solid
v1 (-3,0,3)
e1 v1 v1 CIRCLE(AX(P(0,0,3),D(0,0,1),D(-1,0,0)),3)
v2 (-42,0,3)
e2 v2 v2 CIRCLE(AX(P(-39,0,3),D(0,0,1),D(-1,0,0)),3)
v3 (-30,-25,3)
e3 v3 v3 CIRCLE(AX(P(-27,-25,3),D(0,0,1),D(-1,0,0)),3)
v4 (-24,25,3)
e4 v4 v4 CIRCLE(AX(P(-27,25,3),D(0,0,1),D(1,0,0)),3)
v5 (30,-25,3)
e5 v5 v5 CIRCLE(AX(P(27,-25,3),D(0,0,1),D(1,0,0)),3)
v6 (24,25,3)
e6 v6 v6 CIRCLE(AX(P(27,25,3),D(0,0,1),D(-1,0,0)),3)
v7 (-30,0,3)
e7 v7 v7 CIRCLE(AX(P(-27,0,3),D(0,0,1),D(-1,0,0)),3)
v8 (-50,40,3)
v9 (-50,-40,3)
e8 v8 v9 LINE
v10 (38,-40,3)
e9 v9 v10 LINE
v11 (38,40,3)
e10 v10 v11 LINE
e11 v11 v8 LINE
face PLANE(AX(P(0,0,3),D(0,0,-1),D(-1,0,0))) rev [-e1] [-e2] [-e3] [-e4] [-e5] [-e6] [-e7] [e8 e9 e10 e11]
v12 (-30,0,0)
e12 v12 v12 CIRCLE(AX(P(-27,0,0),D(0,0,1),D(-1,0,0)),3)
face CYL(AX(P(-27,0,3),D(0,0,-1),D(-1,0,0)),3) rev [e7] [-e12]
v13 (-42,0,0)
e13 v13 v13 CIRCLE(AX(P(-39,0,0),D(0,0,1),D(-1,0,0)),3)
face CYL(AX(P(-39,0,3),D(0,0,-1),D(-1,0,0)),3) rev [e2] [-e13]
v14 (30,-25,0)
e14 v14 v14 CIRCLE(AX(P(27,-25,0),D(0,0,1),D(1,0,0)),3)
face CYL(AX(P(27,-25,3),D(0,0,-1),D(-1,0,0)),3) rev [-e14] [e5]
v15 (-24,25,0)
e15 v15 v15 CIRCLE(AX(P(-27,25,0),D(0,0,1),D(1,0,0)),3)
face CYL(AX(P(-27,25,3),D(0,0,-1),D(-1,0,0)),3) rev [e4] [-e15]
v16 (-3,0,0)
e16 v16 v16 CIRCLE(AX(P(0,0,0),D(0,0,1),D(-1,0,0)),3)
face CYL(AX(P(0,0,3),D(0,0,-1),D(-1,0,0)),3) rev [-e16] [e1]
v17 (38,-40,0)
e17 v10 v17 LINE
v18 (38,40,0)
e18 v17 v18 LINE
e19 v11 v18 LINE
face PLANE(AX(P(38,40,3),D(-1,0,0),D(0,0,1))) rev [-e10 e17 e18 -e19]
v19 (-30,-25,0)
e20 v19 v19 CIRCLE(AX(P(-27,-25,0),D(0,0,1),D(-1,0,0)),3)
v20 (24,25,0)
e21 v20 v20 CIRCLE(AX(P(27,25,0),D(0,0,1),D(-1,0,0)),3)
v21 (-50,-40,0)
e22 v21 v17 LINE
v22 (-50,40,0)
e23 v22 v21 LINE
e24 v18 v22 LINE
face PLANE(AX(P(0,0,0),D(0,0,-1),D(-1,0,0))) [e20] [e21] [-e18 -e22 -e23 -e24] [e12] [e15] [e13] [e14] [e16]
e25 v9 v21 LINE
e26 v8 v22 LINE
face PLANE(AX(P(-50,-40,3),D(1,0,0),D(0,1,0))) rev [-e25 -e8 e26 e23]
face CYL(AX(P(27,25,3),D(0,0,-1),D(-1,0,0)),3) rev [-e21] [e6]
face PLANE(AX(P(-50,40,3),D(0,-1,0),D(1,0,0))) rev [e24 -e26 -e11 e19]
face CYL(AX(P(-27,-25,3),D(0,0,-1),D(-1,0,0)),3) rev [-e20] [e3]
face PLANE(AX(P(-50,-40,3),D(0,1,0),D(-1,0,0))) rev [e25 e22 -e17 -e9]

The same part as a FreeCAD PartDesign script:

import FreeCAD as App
import Part
import Sketcher

V = App.Vector


def add_polygon(sketch, points):
    """Adds a closed chain of lines whose ends are joined by coincident constraints."""
    first, n = sketch.GeometryCount, len(points)
    for a, b in zip(points, points[1:] + points[:1]):
        sketch.addGeometry(Part.LineSegment(App.Vector(*a, 0), App.Vector(*b, 0)), False)
    for i in range(n):
        sketch.addConstraint(Sketcher.Constraint("Coincident", first + i, 2, first + (i + 1) % n, 1))

doc = App.newDocument("Part")
params = doc.addObject("Spreadsheet::Sheet", "Params")
for row, (alias, value) in enumerate([
    ("sketch1_diameter", "6 mm"),
    ("sketch1_width", "88 mm"),
    ("sketch1_height", "80 mm"),
    ("pad1_length", "3 mm"),
], start=1):
    params.set(f"A{row}", alias)
    params.set(f"B{row}", "=" + value)
    params.setAlias(f"B{row}", alias)

body = doc.addObject("PartDesign::Body", "Body")

sketch1 = body.newObject("Sketcher::SketchObject", "Sketch")
sketch1.AttachmentSupport = (doc.getObject("XY_Plane"), [""])
sketch1.MapMode = "FlatFace"
add_polygon(sketch1, [(-50, 40), (-50, -40), (38, -40), (38, 40)])
sketch1.addGeometry(Part.Circle(V(-27, -25, 0), V(0, 0, 1), 3), False)
sketch1.addGeometry(Part.Circle(V(27, -25, 0), V(0, 0, 1), 3), False)
sketch1.addGeometry(Part.Circle(V(-39, 0, 0), V(0, 0, 1), 3), False)
sketch1.addGeometry(Part.Circle(V(-27, 0, 0), V(0, 0, 1), 3), False)
sketch1.addGeometry(Part.Circle(V(-27, 25, 0), V(0, 0, 1), 3), False)
sketch1.addGeometry(Part.Circle(V(0, 0, 0), V(0, 0, 1), 3), False)
sketch1.addGeometry(Part.Circle(V(27, 25, 0), V(0, 0, 1), 3), False)
sketch1.addConstraint(Sketcher.Constraint("Vertical", 0))
sketch1.addConstraint(Sketcher.Constraint("Horizontal", 1))
sketch1.addConstraint(Sketcher.Constraint("Vertical", 2))
sketch1.addConstraint(Sketcher.Constraint("Horizontal", 3))
sketch1.addConstraint(Sketcher.Constraint("Coincident", 9, 3, -1, 1))
sketch1.addConstraint(Sketcher.Constraint("Equal", 4, 5))
sketch1.addConstraint(Sketcher.Constraint("Equal", 5, 6))
sketch1.addConstraint(Sketcher.Constraint("Equal", 6, 7))
sketch1.addConstraint(Sketcher.Constraint("Equal", 7, 8))
sketch1.addConstraint(Sketcher.Constraint("Equal", 8, 9))
sketch1.addConstraint(Sketcher.Constraint("Equal", 9, 10))
sketch1.addConstraint(Sketcher.Constraint("Symmetric", 5, 3, 8, 3, -1, 1))
sketch1.addConstraint(Sketcher.Constraint("Symmetric", 4, 3, 10, 3, -1, 1))
sketch1.addConstraint(Sketcher.Constraint("Symmetric", 4, 3, 5, 3, -2))
sketch1.addConstraint(Sketcher.Constraint("PointOnObject", 6, 3, -1))
sketch1.addConstraint(Sketcher.Constraint("PointOnObject", 7, 3, -1))
sketch1.addConstraint(Sketcher.Constraint("Vertical", 4, 3, 7, 3))
sketch1.addConstraint(Sketcher.Constraint("Diameter", 4, 6.0))
sketch1.addConstraint(Sketcher.Constraint("DistanceX", 1, 1, 1, 2, 88.0))
sketch1.addConstraint(Sketcher.Constraint("DistanceY", 0, 2, 0, 1, 80.0))
sketch1.addConstraint(Sketcher.Constraint("DistanceX", 4, 3, -1, 1, 27.0))
sketch1.addConstraint(Sketcher.Constraint("DistanceY", 4, 3, -1, 1, 25.0))
sketch1.addConstraint(Sketcher.Constraint("DistanceX", 6, 3, -1, 1, 39.0))
sketch1.addConstraint(Sketcher.Constraint("DistanceX", 0, 2, -1, 1, 50.0))
sketch1.addConstraint(Sketcher.Constraint("DistanceY", 0, 2, -1, 1, 40.0))
sketch1.setExpression("Constraints[21]", "Params.sketch1_diameter")
sketch1.setExpression("Constraints[22]", "Params.sketch1_width")
sketch1.setExpression("Constraints[23]", "Params.sketch1_height")
pad1 = body.newObject("PartDesign::Pad", "Pad")
pad1.Profile = sketch1
pad1.setExpression("Length", "Params.pad1_length")

doc.recompute()
